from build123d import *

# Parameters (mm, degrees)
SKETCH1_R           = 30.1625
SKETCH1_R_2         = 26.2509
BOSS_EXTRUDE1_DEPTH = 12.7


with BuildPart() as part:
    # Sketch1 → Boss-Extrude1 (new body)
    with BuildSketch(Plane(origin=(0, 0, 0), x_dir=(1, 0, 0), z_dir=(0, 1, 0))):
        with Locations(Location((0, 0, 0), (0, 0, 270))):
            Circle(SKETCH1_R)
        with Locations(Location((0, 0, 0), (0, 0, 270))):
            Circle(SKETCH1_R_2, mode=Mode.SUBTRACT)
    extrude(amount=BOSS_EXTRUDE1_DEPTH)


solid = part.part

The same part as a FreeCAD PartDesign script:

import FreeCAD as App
import Part
import Sketcher

V = App.Vector
Q = App.Units.Quantity

doc = App.newDocument("Part")
params = doc.addObject("Spreadsheet::Sheet", "Params")
for row, (alias, value) in enumerate([
    ("sketch1_diameter", "2.375 in"),
    ("sketch1_diameter2", "2.067 in"),
    ("pad1_length", "0.5 in"),
], start=1):
    params.set(f"A{row}", alias)
    params.set(f"B{row}", "=" + value)
    params.setAlias(f"B{row}", alias)

body = doc.addObject("PartDesign::Body", "Body")

sketch1 = doc.addObject("Sketcher::SketchObject", "Sketch")
body.addObject(sketch1)
sketch1.AttachmentSupport = (doc.XZ_Plane, [""])
sketch1.MapMode = "FlatFace"
sketch1.addGeometry([
    Part.Circle(V(0, 0, 0), V(0, 0, 1), 30.1625),
    Part.Circle(V(0, 0, 0), V(0, 0, 1), 26.2509),
], False)
sketch1.addConstraint([
    Sketcher.Constraint("Coincident", 0, 3, -1, 1),
    Sketcher.Constraint("Coincident", 1, 3, -1, 1),
    Sketcher.Constraint("Diameter", 0, Q("2.375 in")),
    Sketcher.Constraint("Diameter", 1, Q("2.067 in")),
])
sketch1.setExpression("Constraints[2]", "Params.sketch1_diameter")
sketch1.setExpression("Constraints[3]", "Params.sketch1_diameter2")
pad1 = doc.addObject("PartDesign::Pad", "Pad")
body.addObject(pad1)
pad1.Profile = sketch1
pad1.setExpression("Length", "Params.pad1_length")
pad1.Reversed = True

doc.recompute()
